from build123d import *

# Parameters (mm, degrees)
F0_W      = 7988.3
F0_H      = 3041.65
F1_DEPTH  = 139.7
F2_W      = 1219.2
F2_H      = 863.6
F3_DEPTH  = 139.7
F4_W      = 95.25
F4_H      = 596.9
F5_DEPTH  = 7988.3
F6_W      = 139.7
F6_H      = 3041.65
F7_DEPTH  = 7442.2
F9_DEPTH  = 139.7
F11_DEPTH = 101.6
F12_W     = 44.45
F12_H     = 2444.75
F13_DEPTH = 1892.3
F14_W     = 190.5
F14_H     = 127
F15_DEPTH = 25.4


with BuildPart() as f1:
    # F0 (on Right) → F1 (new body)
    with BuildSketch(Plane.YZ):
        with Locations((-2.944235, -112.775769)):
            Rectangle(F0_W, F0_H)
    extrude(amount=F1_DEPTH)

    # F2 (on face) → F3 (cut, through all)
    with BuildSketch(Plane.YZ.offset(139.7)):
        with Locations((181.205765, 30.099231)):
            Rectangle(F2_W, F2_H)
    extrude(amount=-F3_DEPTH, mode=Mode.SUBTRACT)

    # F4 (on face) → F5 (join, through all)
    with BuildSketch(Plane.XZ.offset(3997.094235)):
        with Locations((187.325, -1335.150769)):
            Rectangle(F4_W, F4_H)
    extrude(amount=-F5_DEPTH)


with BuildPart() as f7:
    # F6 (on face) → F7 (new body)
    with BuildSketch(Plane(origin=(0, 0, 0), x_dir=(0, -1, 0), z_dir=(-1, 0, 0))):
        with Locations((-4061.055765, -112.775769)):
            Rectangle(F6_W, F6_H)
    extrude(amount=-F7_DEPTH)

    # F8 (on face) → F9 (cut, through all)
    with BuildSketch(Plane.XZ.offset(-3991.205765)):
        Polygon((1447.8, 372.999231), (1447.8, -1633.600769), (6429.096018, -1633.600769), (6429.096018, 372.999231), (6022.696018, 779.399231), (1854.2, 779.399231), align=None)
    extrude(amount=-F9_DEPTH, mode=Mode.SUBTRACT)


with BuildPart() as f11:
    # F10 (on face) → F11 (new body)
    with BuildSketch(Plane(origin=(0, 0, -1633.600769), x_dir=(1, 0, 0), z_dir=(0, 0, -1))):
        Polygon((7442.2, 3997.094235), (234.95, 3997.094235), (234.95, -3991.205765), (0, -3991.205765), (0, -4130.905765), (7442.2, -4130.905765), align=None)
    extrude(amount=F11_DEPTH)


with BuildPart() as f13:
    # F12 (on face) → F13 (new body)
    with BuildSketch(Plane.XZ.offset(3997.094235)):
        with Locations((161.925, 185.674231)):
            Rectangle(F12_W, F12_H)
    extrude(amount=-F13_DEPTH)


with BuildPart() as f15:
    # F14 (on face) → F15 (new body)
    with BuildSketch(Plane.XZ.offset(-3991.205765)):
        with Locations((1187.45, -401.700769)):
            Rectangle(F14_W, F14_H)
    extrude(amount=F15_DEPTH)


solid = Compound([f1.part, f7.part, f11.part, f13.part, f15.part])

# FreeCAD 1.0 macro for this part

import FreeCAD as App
import Part
import Sketcher
from FreeCAD import Vector
Q = App.Units.Quantity

doc = App.newDocument("Part")
body = doc.addObject("PartDesign::Body", "Body")

sketch1 = doc.addObject("Sketcher::SketchObject", "Sketch")
body.addObject(sketch1)
sketch1.AttachmentSupport = (doc.YZ_Plane, [""])
sketch1.MapMode = "FlatFace"
sketch1.addGeometry(Part.LineSegment(Vector(-3997.094235, 1408.049231, 0), Vector(-3997.094235, -1633.600769, 0)), False)
sketch1.addGeometry(Part.LineSegment(Vector(-3997.094235, -1633.600769, 0), Vector(3991.205765, -1633.600769, 0)), False)
sketch1.addGeometry(Part.LineSegment(Vector(3991.205765, -1633.600769, 0), Vector(3991.205765, 1408.049231, 0)), False)
sketch1.addGeometry(Part.LineSegment(Vector(3991.205765, 1408.049231, 0), Vector(-3997.094235, 1408.049231, 0)), False)
sketch1.addConstraint(Sketcher.Constraint("Coincident", 0, 2, 1, 1))
sketch1.addConstraint(Sketcher.Constraint("Coincident", 1, 2, 2, 1))
sketch1.addConstraint(Sketcher.Constraint("Coincident", 2, 2, 3, 1))
sketch1.addConstraint(Sketcher.Constraint("Coincident", 3, 2, 0, 1))
sketch1.addConstraint(Sketcher.Constraint("Vertical", 0))
sketch1.addConstraint(Sketcher.Constraint("Horizontal", 1))
sketch1.addConstraint(Sketcher.Constraint("Vertical", 2))
sketch1.addConstraint(Sketcher.Constraint("Horizontal", 3))
sketch1.addConstraint(Sketcher.Constraint("DistanceX", 1, 1, 1, 2, Q("314.5 in")))
sketch1.addConstraint(Sketcher.Constraint("DistanceY", 0, 2, 0, 1, Q("119.75 in")))
sketch1.addConstraint(Sketcher.Constraint("DistanceY", 0, 2, -1, 1, 1633.600769))
sketch1.addConstraint(Sketcher.Constraint("DistanceX", 0, 2, -1, 1, 3997.094235))
pad1 = doc.addObject("PartDesign::Pad", "Pad")
body.addObject(pad1)
pad1.Profile = sketch1
pad1.Length = Q("5.5 in")

sketch2 = doc.addObject("Sketcher::SketchObject", "Sketch001")
body.addObject(sketch2)
sketch2.AttachmentSupport = (doc.YZ_Plane, [""])
sketch2.MapMode = "FlatFace"
sketch2.AttachmentOffset = App.Placement(Vector(0, 0, 5.5 * 25.4), App.Rotation())
sketch2.addGeometry(Part.LineSegment(Vector(-428.394235, 461.899231, 0), Vector(-428.394235, -401.700769, 0)), False)
sketch2.addGeometry(Part.LineSegment(Vector(-428.394235, -401.700769, 0), Vector(790.805765, -401.700769, 0)), False)
sketch2.addGeometry(Part.LineSegment(Vector(790.805765, -401.700769, 0), Vector(790.805765, 461.899231, 0)), False)
sketch2.addGeometry(Part.LineSegment(Vector(790.805765, 461.899231, 0), Vector(-428.394235, 461.899231, 0)), False)
sketch2.addConstraint(Sketcher.Constraint("Coincident", 0, 2, 1, 1))
sketch2.addConstraint(Sketcher.Constraint("Coincident", 1, 2, 2, 1))
sketch2.addConstraint(Sketcher.Constraint("Coincident", 2, 2, 3, 1))
sketch2.addConstraint(Sketcher.Constraint("Coincident", 3, 2, 0, 1))
sketch2.addConstraint(Sketcher.Constraint("Vertical", 0))
sketch2.addConstraint(Sketcher.Constraint("Horizontal", 1))
sketch2.addConstraint(Sketcher.Constraint("Vertical", 2))
sketch2.addConstraint(Sketcher.Constraint("Horizontal", 3))
sketch2.addConstraint(Sketcher.Constraint("DistanceX", 1, 1, 1, 2, Q("48 in")))
sketch2.addConstraint(Sketcher.Constraint("DistanceY", 0, 2, 0, 1, Q("34 in")))
sketch2.addConstraint(Sketcher.Constraint("DistanceY", 0, 2, -1, 1, 401.700769))
sketch2.addConstraint(Sketcher.Constraint("DistanceX", 0, 2, -1, 1, 428.394235))
pocket1 = doc.addObject("PartDesign::Pocket", "Pocket")
body.addObject(pocket1)
pocket1.Profile = sketch2
pocket1.Type = "ThroughAll"

sketch3 = doc.addObject("Sketcher::SketchObject", "Sketch002")
body.addObject(sketch3)
sketch3.AttachmentSupport = (doc.XZ_Plane, [""])
sketch3.MapMode = "FlatFace"
sketch3.AttachmentOffset = App.Placement(Vector(0, 0, 3997.094235), App.Rotation())
sketch3.addGeometry(Part.LineSegment(Vector(139.7, -1036.700769, 0), Vector(139.7, -1633.600769, 0)), False)
sketch3.addGeometry(Part.LineSegment(Vector(139.7, -1633.600769, 0), Vector(234.95, -1633.600769, 0)), False)
sketch3.addGeometry(Part.LineSegment(Vector(234.95, -1633.600769, 0), Vector(234.95, -1036.700769, 0)), False)
sketch3.addGeometry(Part.LineSegment(Vector(234.95, -1036.700769, 0), Vector(139.7, -1036.700769, 0)), False)
sketch3.addConstraint(Sketcher.Constraint("Coincident", 0, 2, 1, 1))
sketch3.addConstraint(Sketcher.Constraint("Coincident", 1, 2, 2, 1))
sketch3.addConstraint(Sketcher.Constraint("Coincident", 2, 2, 3, 1))
sketch3.addConstraint(Sketcher.Constraint("Coincident", 3, 2, 0, 1))
sketch3.addConstraint(Sketcher.Constraint("Vertical", 0))
sketch3.addConstraint(Sketcher.Constraint("Horizontal", 1))
sketch3.addConstraint(Sketcher.Constraint("Vertical", 2))
sketch3.addConstraint(Sketcher.Constraint("Horizontal", 3))
sketch3.addConstraint(Sketcher.Constraint("DistanceY", 0, 2, 0, 1, Q("23.5 in")))
sketch3.addConstraint(Sketcher.Constraint("DistanceX", 1, 1, 1, 2, Q("3.75 in")))
sketch3.addConstraint(Sketcher.Constraint("DistanceX", -1, 1, 0, 2, Q("5.5 in")))
sketch3.addConstraint(Sketcher.Constraint("DistanceY", 0, 2, -1, 1, 1633.600769))
pad2 = doc.addObject("PartDesign::Pad", "Pad001")
body.addObject(pad2)
pad2.Profile = sketch3
pad2.Length = Q("314.5 in")
pad2.Reversed = True
body2 = doc.addObject("PartDesign::Body", "Body001")

sketch4 = doc.addObject("Sketcher::SketchObject", "Sketch003")
body2.addObject(sketch4)
sketch4.AttachmentSupport = (doc.getObject("YZ_Plane001"), [""])
sketch4.MapMode = "FlatFace"
sketch4.addGeometry(Part.LineSegment(Vector(4130.905765, 1408.049231, 0), Vector(4130.905765, -1633.600769, 0)), False)
sketch4.addGeometry(Part.LineSegment(Vector(4130.905765, -1633.600769, 0), Vector(3991.205765, -1633.600769, 0)), False)
sketch4.addGeometry(Part.LineSegment(Vector(3991.205765, -1633.600769, 0), Vector(3991.205765, 1408.049231, 0)), False)
sketch4.addGeometry(Part.LineSegment(Vector(3991.205765, 1408.049231, 0), Vector(4130.905765, 1408.049231, 0)), False)
sketch4.addConstraint(Sketcher.Constraint("Coincident", 0, 2, 1, 1))
sketch4.addConstraint(Sketcher.Constraint("Coincident", 1, 2, 2, 1))
sketch4.addConstraint(Sketcher.Constraint("Coincident", 2, 2, 3, 1))
sketch4.addConstraint(Sketcher.Constraint("Coincident", 3, 2, 0, 1))
sketch4.addConstraint(Sketcher.Constraint("Vertical", 0))
sketch4.addConstraint(Sketcher.Constraint("Horizontal", 1))
sketch4.addConstraint(Sketcher.Constraint("Vertical", 2))
sketch4.addConstraint(Sketcher.Constraint("Horizontal", 3))
sketch4.addConstraint(Sketcher.Constraint("DistanceX", 1, 2, 1, 1, Q("5.5 in")))
sketch4.addConstraint(Sketcher.Constraint("DistanceY", 0, 2, 0, 1, Q("119.75 in")))
sketch4.addConstraint(Sketcher.Constraint("DistanceY", 0, 2, -1, 1, 1633.600769))
sketch4.addConstraint(Sketcher.Constraint("DistanceX", -1, 1, 0, 2, 4130.905765))
pad3 = doc.addObject("PartDesign::Pad", "Pad002")
body2.addObject(pad3)
pad3.Profile = sketch4
pad3.Length = Q("293 in")

sketch5 = doc.addObject("Sketcher::SketchObject", "Sketch004")
body2.addObject(sketch5)
sketch5.AttachmentSupport = (doc.getObject("XZ_Plane001"), [""])
sketch5.MapMode = "FlatFace"
sketch5.AttachmentOffset = App.Placement(Vector(0, 0, -3991.205765), App.Rotation())
sketch5.addGeometry(Part.LineSegment(Vector(1447.8, 372.999231, 0), Vector(1447.8, -1633.600769, 0)), False)
sketch5.addGeometry(Part.LineSegment(Vector(1447.8, -1633.600769, 0), Vector(6429.096018, -1633.600769, 0)), False)
sketch5.addGeometry(Part.LineSegment(Vector(6429.096018, -1633.600769, 0), Vector(6429.096018, 372.999231, 0)), False)
sketch5.addGeometry(Part.LineSegment(Vector(6429.096018, 372.999231, 0), Vector(6022.696018, 779.399231, 0)), False)
sketch5.addGeometry(Part.LineSegment(Vector(6022.696018, 779.399231, 0), Vector(1854.2, 779.399231, 0)), False)
sketch5.addGeometry(Part.LineSegment(Vector(1854.2, 779.399231, 0), Vector(1447.8, 372.999231, 0)), False)
sketch5.addConstraint(Sketcher.Constraint("Coincident", 0, 2, 1, 1))
sketch5.addConstraint(Sketcher.Constraint("Coincident", 1, 2, 2, 1))
sketch5.addConstraint(Sketcher.Constraint("Coincident", 2, 2, 3, 1))
sketch5.addConstraint(Sketcher.Constraint("Coincident", 3, 2, 4, 1))
sketch5.addConstraint(Sketcher.Constraint("Coincident", 4, 2, 5, 1))
sketch5.addConstraint(Sketcher.Constraint("Coincident", 5, 2, 0, 1))
sketch5.addConstraint(Sketcher.Constraint("Vertical", 0))
sketch5.addConstraint(Sketcher.Constraint("Horizontal", 1))
sketch5.addConstraint(Sketcher.Constraint("Vertical", 2))
sketch5.addConstraint(Sketcher.Constraint("Horizontal", 4))
sketch5.addConstraint(Sketcher.Constraint("Perpendicular", 3, 5))
sketch5.addConstraint(Sketcher.Constraint("Horizontal", 2, 2, 5, 2))
sketch5.addConstraint(Sketcher.Constraint("Equal", 3, 5))
sketch5.addConstraint(Sketcher.Constraint("DistanceY", 0, 2, 0, 1, Q("79 in")))
sketch5.addConstraint(Sketcher.Constraint("DistanceX", -1, 1, 0, 2, Q("57 in")))
sketch5.addConstraint(Sketcher.Constraint("DistanceX", -1, 1, 4, 2, Q("73 in")))
sketch5.addConstraint(Sketcher.Constraint("DistanceX", 1, 1, 1, 2, 4981.296018))
sketch5.addConstraint(Sketcher.Constraint("DistanceY", 0, 2, -1, 1, 1633.600769))
pocket2 = doc.addObject("PartDesign::Pocket", "Pocket001")
body2.addObject(pocket2)
pocket2.Profile = sketch5
pocket2.Type = "ThroughAll"
body3 = doc.addObject("PartDesign::Body", "Body002")

sketch6 = doc.addObject("Sketcher::SketchObject", "Sketch005")
body3.addObject(sketch6)
sketch6.AttachmentSupport = (doc.getObject("XY_Plane002"), [""])
sketch6.MapMode = "FlatFace"
sketch6.AttachmentOffset = App.Placement(Vector(0, 0, -1633.600769), App.Rotation())
sketch6.addGeometry(Part.LineSegment(Vector(7442.2, -3997.094235, 0), Vector(234.95, -3997.094235, 0)), False)
sketch6.addGeometry(Part.LineSegment(Vector(234.95, -3997.094235, 0), Vector(234.95, 3991.205765, 0)), False)
sketch6.addGeometry(Part.LineSegment(Vector(234.95, 3991.205765, 0), Vector(0, 3991.205765, 0)), False)
sketch6.addGeometry(Part.LineSegment(Vector(0, 3991.205765, 0), Vector(0, 4130.905765, 0)), False)
sketch6.addGeometry(Part.LineSegment(Vector(0, 4130.905765, 0), Vector(7442.2, 4130.905765, 0)), False)
sketch6.addGeometry(Part.LineSegment(Vector(7442.2, 4130.905765, 0), Vector(7442.2, -3997.094235, 0)), False)
sketch6.addConstraint(Sketcher.Constraint("Coincident", 0, 2, 1, 1))
sketch6.addConstraint(Sketcher.Constraint("Coincident", 1, 2, 2, 1))
sketch6.addConstraint(Sketcher.Constraint("Coincident", 2, 2, 3, 1))
sketch6.addConstraint(Sketcher.Constraint("Coincident", 3, 2, 4, 1))
sketch6.addConstraint(Sketcher.Constraint("Coincident", 4, 2, 5, 1))
sketch6.addConstraint(Sketcher.Constraint("Coincident", 5, 2, 0, 1))
sketch6.addConstraint(Sketcher.Constraint("Horizontal", 0))
sketch6.addConstraint(Sketcher.Constraint("Vertical", 1))
sketch6.addConstraint(Sketcher.Constraint("Horizontal", 2))
sketch6.addConstraint(Sketcher.Constraint("Vertical", 3))
sketch6.addConstraint(Sketcher.Constraint("Horizontal", 4))
sketch6.addConstraint(Sketcher.Constraint("Vertical", 5))
sketch6.addConstraint(Sketcher.Constraint("PointOnObject", 2, 2, -2))
sketch6.addConstraint(Sketcher.Constraint("DistanceX", 4, 1, 4, 2, Q("293 in")))
sketch6.addConstraint(Sketcher.Constraint("DistanceY", 5, 2, 5, 1, Q("320 in")))
sketch6.addConstraint(Sketcher.Constraint("DistanceY", 1, 1, 1, 2, Q("314.5 in")))
sketch6.addConstraint(Sketcher.Constraint("DistanceX", 0, 2, 0, 1, Q("283.75 in")))
sketch6.addConstraint(Sketcher.Constraint("DistanceY", 0, 2, -1, 1, 3997.094235))
pad4 = doc.addObject("PartDesign::Pad", "Pad003")
body3.addObject(pad4)
pad4.Profile = sketch6
pad4.Length = Q("4 in")
pad4.Reversed = True
body4 = doc.addObject("PartDesign::Body", "Body003")

sketch7 = doc.addObject("Sketcher::SketchObject", "Sketch006")
body4.addObject(sketch7)
sketch7.AttachmentSupport = (doc.getObject("XZ_Plane003"), [""])
sketch7.MapMode = "FlatFace"
sketch7.AttachmentOffset = App.Placement(Vector(0, 0, 3997.094235), App.Rotation())
sketch7.addGeometry(Part.LineSegment(Vector(139.7, 1408.049231, 0), Vector(139.7, -1036.700769, 0)), False)
sketch7.addGeometry(Part.LineSegment(Vector(139.7, -1036.700769, 0), Vector(184.15, -1036.700769, 0)), False)
sketch7.addGeometry(Part.LineSegment(Vector(184.15, -1036.700769, 0), Vector(184.15, 1408.049231, 0)), False)
sketch7.addGeometry(Part.LineSegment(Vector(184.15, 1408.049231, 0), Vector(139.7, 1408.049231, 0)), False)
sketch7.addConstraint(Sketcher.Constraint("Coincident", 0, 2, 1, 1))
sketch7.addConstraint(Sketcher.Constraint("Coincident", 1, 2, 2, 1))
sketch7.addConstraint(Sketcher.Constraint("Coincident", 2, 2, 3, 1))
sketch7.addConstraint(Sketcher.Constraint("Coincident", 3, 2, 0, 1))
sketch7.addConstraint(Sketcher.Constraint("Vertical", 0))
sketch7.addConstraint(Sketcher.Constraint("Horizontal", 1))
sketch7.addConstraint(Sketcher.Constraint("Vertical", 2))
sketch7.addConstraint(Sketcher.Constraint("Horizontal", 3))
sketch7.addConstraint(Sketcher.Constraint("DistanceX", 1, 1, 1, 2, Q("1.75 in")))
sketch7.addConstraint(Sketcher.Constraint("DistanceY", 0, 2, 0, 1, Q("96.25 in")))
sketch7.addConstraint(Sketcher.Constraint("DistanceX", -1, 1, 0, 2, Q("5.5 in")))
sketch7.addConstraint(Sketcher.Constraint("DistanceY", 0, 2, -1, 1, 1036.700769))
pad5 = doc.addObject("PartDesign::Pad", "Pad004")
body4.addObject(pad5)
pad5.Profile = sketch7
pad5.Length = Q("74.5 in")
pad5.Reversed = True
body5 = doc.addObject("PartDesign::Body", "Body004")

sketch8 = doc.addObject("Sketcher::SketchObject", "Sketch007")
body5.addObject(sketch8)
sketch8.AttachmentSupport = (doc.getObject("XZ_Plane004"), [""])
sketch8.MapMode = "FlatFace"
sketch8.AttachmentOffset = App.Placement(Vector(0, 0, -3991.205765), App.Rotation())
sketch8.addGeometry(Part.LineSegment(Vector(1092.2, -338.200769, 0), Vector(1092.2, -465.200769, 0)), False)
sketch8.addGeometry(Part.LineSegment(Vector(1092.2, -465.200769, 0), Vector(1282.7, -465.200769, 0)), False)
sketch8.addGeometry(Part.LineSegment(Vector(1282.7, -465.200769, 0), Vector(1282.7, -338.200769, 0)), False)
sketch8.addGeometry(Part.LineSegment(Vector(1282.7, -338.200769, 0), Vector(1092.2, -338.200769, 0)), False)
sketch8.addConstraint(Sketcher.Constraint("Coincident", 0, 2, 1, 1))
sketch8.addConstraint(Sketcher.Constraint("Coincident", 1, 2, 2, 1))
sketch8.addConstraint(Sketcher.Constraint("Coincident", 2, 2, 3, 1))
sketch8.addConstraint(Sketcher.Constraint("Coincident", 3, 2, 0, 1))
sketch8.addConstraint(Sketcher.Constraint("Vertical", 0))
sketch8.addConstraint(Sketcher.Constraint("Horizontal", 1))
sketch8.addConstraint(Sketcher.Constraint("Vertical", 2))
sketch8.addConstraint(Sketcher.Constraint("Horizontal", 3))
sketch8.addConstraint(Sketcher.Constraint("DistanceY", 0, 2, 0, 1, Q("5 in")))
sketch8.addConstraint(Sketcher.Constraint("DistanceX", 1, 1, 1, 2, Q("7.5 in")))
sketch8.addConstraint(Sketcher.Constraint("DistanceX", -1, 1, 0, 2, Q("43 in")))
sketch8.addConstraint(Sketcher.Constraint("DistanceY", 0, 2, -1, 1, 465.200769))
pad6 = doc.addObject("PartDesign::Pad", "Pad005")
body5.addObject(pad6)
pad6.Profile = sketch8
pad6.Length = Q("1 in")

doc.recompute()
